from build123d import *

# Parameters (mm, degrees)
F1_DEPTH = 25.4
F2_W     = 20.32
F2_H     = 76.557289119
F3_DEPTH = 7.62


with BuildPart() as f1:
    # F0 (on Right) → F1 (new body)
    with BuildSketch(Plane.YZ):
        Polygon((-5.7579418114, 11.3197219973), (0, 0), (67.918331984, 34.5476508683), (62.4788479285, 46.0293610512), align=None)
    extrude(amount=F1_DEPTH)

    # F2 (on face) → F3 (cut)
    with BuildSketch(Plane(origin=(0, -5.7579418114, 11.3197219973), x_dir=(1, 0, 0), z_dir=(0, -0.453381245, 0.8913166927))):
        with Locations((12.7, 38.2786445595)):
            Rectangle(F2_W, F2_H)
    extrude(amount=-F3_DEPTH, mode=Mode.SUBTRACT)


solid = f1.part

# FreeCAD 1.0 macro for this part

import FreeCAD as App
import Part
import Sketcher
Q = App.Units.Quantity


def add_polygon(sketch, points):
    """Adds a closed chain of lines whose ends are joined by coincident constraints."""
    first, n = sketch.GeometryCount, len(points)
    for a, b in zip(points, points[1:] + points[:1]):
        sketch.addGeometry(Part.LineSegment(App.Vector(*a, 0), App.Vector(*b, 0)), False)
    for i in range(n):
        sketch.addConstraint(Sketcher.Constraint("Coincident", first + i, 2, first + (i + 1) % n, 1))

doc = App.newDocument("Part")
params = doc.addObject("Spreadsheet::Sheet", "Params")
for row, (alias, value) in enumerate([
    ("sketch1_length", "3 in"),
    ("sketch1_length2", "0.5 in"),
    ("pad1_length", "1 in"),
    ("sketch2_width", "0.8 in"),
    ("pocket1_length", "0.3 in"),
], start=1):
    params.set(f"A{row}", alias)
    params.set(f"B{row}", "=" + value)
    params.setAlias(f"B{row}", alias)

body = doc.addObject("PartDesign::Body", "Body")

# Sketch on YZ plane
sketch1 = body.newObject("Sketcher::SketchObject", "Sketch")
sketch1.AttachmentSupport = (doc.getObject("YZ_Plane"), [""])
sketch1.MapMode = "FlatFace"
add_polygon(sketch1, [(-5.757942, 11.319722), (0, 0), (67.918332, 34.547651), (62.478848, 46.029361)])  # lines 0-3
sketch1.addConstraint([
    Sketcher.Constraint("Coincident", 0, 2, -1, 1),
    Sketcher.Constraint("Perpendicular", 0, 1),
    Sketcher.Constraint("Parallel", 1, 3),
    Sketcher.Constraint("Distance", 1, Q("3 in")),
    Sketcher.Constraint("Distance", 0, Q("0.5 in")),
    Sketcher.Constraint("Distance", 3, Q("76.557289 mm")),
    Sketcher.Constraint("DistanceX", -1, 1, 1, 2, Q("67.918332 mm")),
])
sketch1.setExpression("Constraints[7]", "Params.sketch1_length")
sketch1.setExpression("Constraints[8]", "Params.sketch1_length2")
pad1 = body.newObject("PartDesign::Pad", "Pad")
pad1.Profile = sketch1
pad1.setExpression("Length", "Params.pad1_length")

# Sketch on an angled plane
sketch2 = body.newObject("Sketcher::SketchObject", "Sketch001")
sketch2.Placement = App.Placement(App.Vector(0, -5.757942, 11.319722), App.Rotation(App.Vector(1, 0, 0), App.Vector(0, 0.891316693, 0.453381245), App.Vector(0, -0.453381245, 0.891316693), "ZXY"))
add_polygon(sketch2, [(2.54, 76.557289), (2.54, 0), (22.86, 0), (22.86, 76.557289)])  # lines 0-3
sketch2.addConstraint([
    Sketcher.Constraint("Vertical", 0),
    Sketcher.Constraint("Horizontal", 1),
    Sketcher.Constraint("Vertical", 2),
    Sketcher.Constraint("Horizontal", 3),
    Sketcher.Constraint("PointOnObject", 0, 2, -1),
    Sketcher.Constraint("DistanceX", 1, 1, 1, 2, Q("0.8 in")),
    Sketcher.Constraint("DistanceX", -1, 1, 0, 2, Q("0.1 in")),
    Sketcher.Constraint("DistanceY", 0, 2, 0, 1, Q("76.557289 mm")),
])
sketch2.setExpression("Constraints[9]", "Params.sketch2_width")
pocket1 = body.newObject("PartDesign::Pocket", "Pocket")
pocket1.Profile = sketch2
pocket1.setExpression("Length", "Params.pocket1_length")

doc.recompute()
